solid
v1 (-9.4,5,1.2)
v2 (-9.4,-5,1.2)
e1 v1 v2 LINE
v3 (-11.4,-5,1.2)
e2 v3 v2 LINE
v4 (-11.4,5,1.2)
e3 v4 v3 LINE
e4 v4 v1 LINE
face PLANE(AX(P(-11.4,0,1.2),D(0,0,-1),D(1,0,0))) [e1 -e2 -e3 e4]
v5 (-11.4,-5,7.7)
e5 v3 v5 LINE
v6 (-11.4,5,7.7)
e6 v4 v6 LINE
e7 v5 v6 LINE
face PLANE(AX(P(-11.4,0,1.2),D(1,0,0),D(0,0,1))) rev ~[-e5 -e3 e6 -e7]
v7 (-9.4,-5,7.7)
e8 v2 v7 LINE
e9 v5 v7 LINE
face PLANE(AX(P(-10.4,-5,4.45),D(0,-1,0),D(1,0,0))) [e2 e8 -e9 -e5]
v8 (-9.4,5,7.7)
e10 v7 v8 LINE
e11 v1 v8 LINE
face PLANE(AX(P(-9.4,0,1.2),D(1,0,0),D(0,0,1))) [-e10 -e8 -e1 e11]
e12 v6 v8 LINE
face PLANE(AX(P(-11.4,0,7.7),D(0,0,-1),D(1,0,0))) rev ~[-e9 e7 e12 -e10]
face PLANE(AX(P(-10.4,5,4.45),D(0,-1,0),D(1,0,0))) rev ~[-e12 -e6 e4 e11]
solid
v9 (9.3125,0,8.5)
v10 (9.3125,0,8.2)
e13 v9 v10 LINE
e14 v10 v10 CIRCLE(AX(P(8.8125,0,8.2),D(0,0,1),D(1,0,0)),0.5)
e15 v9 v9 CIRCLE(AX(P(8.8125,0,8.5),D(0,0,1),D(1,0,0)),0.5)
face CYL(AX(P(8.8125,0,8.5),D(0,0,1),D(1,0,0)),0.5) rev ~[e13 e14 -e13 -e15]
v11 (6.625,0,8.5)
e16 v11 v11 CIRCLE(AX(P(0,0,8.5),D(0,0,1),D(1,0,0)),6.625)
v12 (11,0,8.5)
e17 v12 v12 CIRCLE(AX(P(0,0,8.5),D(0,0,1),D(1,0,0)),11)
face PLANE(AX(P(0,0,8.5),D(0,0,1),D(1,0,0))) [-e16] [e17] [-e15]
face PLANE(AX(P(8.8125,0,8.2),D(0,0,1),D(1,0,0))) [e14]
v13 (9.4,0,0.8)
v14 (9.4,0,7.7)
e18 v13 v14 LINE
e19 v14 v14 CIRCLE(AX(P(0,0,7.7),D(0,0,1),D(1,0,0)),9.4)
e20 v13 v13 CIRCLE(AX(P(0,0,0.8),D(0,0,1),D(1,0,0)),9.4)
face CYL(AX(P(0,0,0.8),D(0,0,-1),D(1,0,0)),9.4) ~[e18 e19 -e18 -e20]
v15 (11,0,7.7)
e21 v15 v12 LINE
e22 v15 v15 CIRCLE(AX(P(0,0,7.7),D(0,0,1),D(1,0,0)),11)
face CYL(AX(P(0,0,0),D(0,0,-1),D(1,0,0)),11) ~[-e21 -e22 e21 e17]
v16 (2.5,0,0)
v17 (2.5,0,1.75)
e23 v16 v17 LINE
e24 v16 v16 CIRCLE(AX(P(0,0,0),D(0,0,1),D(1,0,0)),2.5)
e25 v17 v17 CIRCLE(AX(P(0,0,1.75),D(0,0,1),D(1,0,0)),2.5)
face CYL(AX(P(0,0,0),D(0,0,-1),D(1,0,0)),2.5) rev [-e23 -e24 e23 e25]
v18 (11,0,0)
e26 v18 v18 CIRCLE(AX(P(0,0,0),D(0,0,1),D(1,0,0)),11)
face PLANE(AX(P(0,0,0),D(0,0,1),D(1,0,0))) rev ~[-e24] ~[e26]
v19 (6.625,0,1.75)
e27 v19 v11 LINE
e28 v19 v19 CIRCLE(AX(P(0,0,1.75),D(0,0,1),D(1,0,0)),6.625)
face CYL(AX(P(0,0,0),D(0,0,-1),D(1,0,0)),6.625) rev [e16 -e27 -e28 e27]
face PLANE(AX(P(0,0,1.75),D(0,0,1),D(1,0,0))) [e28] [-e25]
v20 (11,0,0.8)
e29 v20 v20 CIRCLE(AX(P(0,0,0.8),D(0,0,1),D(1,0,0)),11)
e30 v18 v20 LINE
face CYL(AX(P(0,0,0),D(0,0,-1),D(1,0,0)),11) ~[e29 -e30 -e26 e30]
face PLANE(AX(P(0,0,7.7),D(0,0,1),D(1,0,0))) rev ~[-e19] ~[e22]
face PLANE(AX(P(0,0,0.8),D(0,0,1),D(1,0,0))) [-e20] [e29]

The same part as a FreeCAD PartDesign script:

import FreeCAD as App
import Part
import Sketcher


def add_polygon(sketch, points):
    """Adds a closed chain of lines whose ends are joined by coincident constraints."""
    first, n = sketch.GeometryCount, len(points)
    for a, b in zip(points, points[1:] + points[:1]):
        sketch.addGeometry(Part.LineSegment(App.Vector(*a, 0), App.Vector(*b, 0)), False)
    for i in range(n):
        sketch.addConstraint(Sketcher.Constraint("Coincident", first + i, 2, first + (i + 1) % n, 1))

doc = App.newDocument("Part")
params = doc.addObject("Spreadsheet::Sheet", "Params")
for row, (alias, value) in enumerate([
    ("sketch1_diameter", "22 mm"),
    ("sketch1_diameter2", "13.25 mm"),
    ("pad1_length", "8.5 mm"),
    ("sketch2_diameter", "5 mm"),
    ("sketch2_diameter2", "13.25 mm"),
    ("pad2_length", "1.75 mm"),
    ("sketch3_diameter", "22 mm"),
    ("sketch3_diameter2", "18.8 mm"),
    ("pocket1_length", "6.9 mm"),
    ("sketch4_diameter", "1 mm"),
    ("pocket2_length", "0.3 mm"),
    ("sketch5_width", "2 mm"),
    ("sketch5_height", "6.5 mm"),
    ("pad3_length", "10 mm"),
], start=1):
    params.set(f"A{row}", alias)
    params.set(f"B{row}", "=" + value)
    params.setAlias(f"B{row}", alias)

body = doc.addObject("PartDesign::Body", "Body")

sketch1 = body.newObject("Sketcher::SketchObject", "Sketch")
sketch1.AttachmentSupport = (doc.getObject("XY_Plane"), [""])
sketch1.MapMode = "FlatFace"
sketch1.addGeometry([
    Part.Circle(App.Vector(0, 0, 0), App.Vector(0, 0, 1), 11),
    Part.Circle(App.Vector(0, 0, 0), App.Vector(0, 0, 1), 6.625),
], False)
sketch1.addConstraint([
    Sketcher.Constraint("Coincident", 0, 3, -1, 1),
    Sketcher.Constraint("Coincident", 1, 3, -1, 1),
    Sketcher.Constraint("Diameter", 0, 22.0),
    Sketcher.Constraint("Diameter", 1, 13.25),
])
sketch1.setExpression("Constraints[2]", "Params.sketch1_diameter")
sketch1.setExpression("Constraints[3]", "Params.sketch1_diameter2")
pad1 = body.newObject("PartDesign::Pad", "Pad")
pad1.Profile = sketch1
pad1.setExpression("Length", "Params.pad1_length")

sketch2 = body.newObject("Sketcher::SketchObject", "Sketch001")
sketch2.AttachmentSupport = (doc.getObject("XY_Plane"), [""])
sketch2.MapMode = "FlatFace"
sketch2.addGeometry([
    Part.Circle(App.Vector(0, 0, 0), App.Vector(0, 0, 1), 6.625),
    Part.Circle(App.Vector(0, 0, 0), App.Vector(0, 0, 1), 2.5),
], False)
sketch2.addConstraint([
    Sketcher.Constraint("Coincident", 0, 3, -1, 1),
    Sketcher.Constraint("Coincident", 1, 3, -1, 1),
    Sketcher.Constraint("Diameter", 1, 5.0),
    Sketcher.Constraint("Diameter", 0, 13.25),
])
sketch2.setExpression("Constraints[2]", "Params.sketch2_diameter")
sketch2.setExpression("Constraints[3]", "Params.sketch2_diameter2")
pad2 = body.newObject("PartDesign::Pad", "Pad001")
pad2.Profile = sketch2
pad2.setExpression("Length", "Params.pad2_length")

sketch3 = body.newObject("Sketcher::SketchObject", "Sketch002")
sketch3.AttachmentSupport = (doc.getObject("XY_Plane"), [""])
sketch3.MapMode = "FlatFace"
sketch3.AttachmentOffset = App.Placement(App.Vector(0, 0, 0.8), App.Rotation())
sketch3.addGeometry([
    Part.Circle(App.Vector(0, 0, 0), App.Vector(0, 0, 1), 11),
    Part.Circle(App.Vector(0, 0, 0), App.Vector(0, 0, 1), 9.4),
], False)
sketch3.addConstraint([
    Sketcher.Constraint("Coincident", 0, 3, -1, 1),
    Sketcher.Constraint("Coincident", 1, 3, -1, 1),
    Sketcher.Constraint("Diameter", 0, 22.0),
    Sketcher.Constraint("Diameter", 1, 18.8),
])
sketch3.setExpression("Constraints[2]", "Params.sketch3_diameter")
sketch3.setExpression("Constraints[3]", "Params.sketch3_diameter2")
pocket1 = body.newObject("PartDesign::Pocket", "Pocket")
pocket1.Profile = sketch3
pocket1.setExpression("Length", "Params.pocket1_length")
pocket1.Reversed = True

sketch4 = body.newObject("Sketcher::SketchObject", "Sketch003")
sketch4.AttachmentSupport = (doc.getObject("XY_Plane"), [""])
sketch4.MapMode = "FlatFace"
sketch4.AttachmentOffset = App.Placement(App.Vector(0, 0, 8.5), App.Rotation())
sketch4.addGeometry(Part.Circle(App.Vector(8.8125, 0, 0), App.Vector(0, 0, 1), 0.5), False)
sketch4.addConstraint([
    Sketcher.Constraint("PointOnObject", 0, 3, -1),
    Sketcher.Constraint("Diameter", 0, 1.0),
    Sketcher.Constraint("DistanceX", -1, 1, 0, 3, 8.8125),
])
sketch4.setExpression("Constraints[1]", "Params.sketch4_diameter")
pocket2 = body.newObject("PartDesign::Pocket", "Pocket001")
pocket2.Profile = sketch4
pocket2.setExpression("Length", "Params.pocket2_length")
body2 = doc.addObject("PartDesign::Body", "Body001")

sketch5 = body2.newObject("Sketcher::SketchObject", "Sketch004")
sketch5.AttachmentSupport = (doc.getObject("XZ_Plane001"), [""])
sketch5.MapMode = "FlatFace"
add_polygon(sketch5, [(-11.4, 7.7), (-11.4, 1.2), (-9.4, 1.2), (-9.4, 7.7)])
sketch5.addConstraint([
    Sketcher.Constraint("Vertical", 0),
    Sketcher.Constraint("Horizontal", 1),
    Sketcher.Constraint("Vertical", 2),
    Sketcher.Constraint("Horizontal", 3),
    Sketcher.Constraint("DistanceX", 1, 1, 1, 2, 2.0),
    Sketcher.Constraint("DistanceY", 0, 2, 0, 1, 6.5),
    Sketcher.Constraint("DistanceX", 0, 2, -1, 1, 11.4),
    Sketcher.Constraint("DistanceY", -1, 1, 0, 2, 1.2),
])
sketch5.setExpression("Constraints[8]", "Params.sketch5_width")
sketch5.setExpression("Constraints[9]", "Params.sketch5_height")
pad3 = body2.newObject("PartDesign::Pad", "Pad002")
pad3.Profile = sketch5
pad3.setExpression("Length", "Params.pad3_length")
pad3.Midplane = True

doc.recompute()
